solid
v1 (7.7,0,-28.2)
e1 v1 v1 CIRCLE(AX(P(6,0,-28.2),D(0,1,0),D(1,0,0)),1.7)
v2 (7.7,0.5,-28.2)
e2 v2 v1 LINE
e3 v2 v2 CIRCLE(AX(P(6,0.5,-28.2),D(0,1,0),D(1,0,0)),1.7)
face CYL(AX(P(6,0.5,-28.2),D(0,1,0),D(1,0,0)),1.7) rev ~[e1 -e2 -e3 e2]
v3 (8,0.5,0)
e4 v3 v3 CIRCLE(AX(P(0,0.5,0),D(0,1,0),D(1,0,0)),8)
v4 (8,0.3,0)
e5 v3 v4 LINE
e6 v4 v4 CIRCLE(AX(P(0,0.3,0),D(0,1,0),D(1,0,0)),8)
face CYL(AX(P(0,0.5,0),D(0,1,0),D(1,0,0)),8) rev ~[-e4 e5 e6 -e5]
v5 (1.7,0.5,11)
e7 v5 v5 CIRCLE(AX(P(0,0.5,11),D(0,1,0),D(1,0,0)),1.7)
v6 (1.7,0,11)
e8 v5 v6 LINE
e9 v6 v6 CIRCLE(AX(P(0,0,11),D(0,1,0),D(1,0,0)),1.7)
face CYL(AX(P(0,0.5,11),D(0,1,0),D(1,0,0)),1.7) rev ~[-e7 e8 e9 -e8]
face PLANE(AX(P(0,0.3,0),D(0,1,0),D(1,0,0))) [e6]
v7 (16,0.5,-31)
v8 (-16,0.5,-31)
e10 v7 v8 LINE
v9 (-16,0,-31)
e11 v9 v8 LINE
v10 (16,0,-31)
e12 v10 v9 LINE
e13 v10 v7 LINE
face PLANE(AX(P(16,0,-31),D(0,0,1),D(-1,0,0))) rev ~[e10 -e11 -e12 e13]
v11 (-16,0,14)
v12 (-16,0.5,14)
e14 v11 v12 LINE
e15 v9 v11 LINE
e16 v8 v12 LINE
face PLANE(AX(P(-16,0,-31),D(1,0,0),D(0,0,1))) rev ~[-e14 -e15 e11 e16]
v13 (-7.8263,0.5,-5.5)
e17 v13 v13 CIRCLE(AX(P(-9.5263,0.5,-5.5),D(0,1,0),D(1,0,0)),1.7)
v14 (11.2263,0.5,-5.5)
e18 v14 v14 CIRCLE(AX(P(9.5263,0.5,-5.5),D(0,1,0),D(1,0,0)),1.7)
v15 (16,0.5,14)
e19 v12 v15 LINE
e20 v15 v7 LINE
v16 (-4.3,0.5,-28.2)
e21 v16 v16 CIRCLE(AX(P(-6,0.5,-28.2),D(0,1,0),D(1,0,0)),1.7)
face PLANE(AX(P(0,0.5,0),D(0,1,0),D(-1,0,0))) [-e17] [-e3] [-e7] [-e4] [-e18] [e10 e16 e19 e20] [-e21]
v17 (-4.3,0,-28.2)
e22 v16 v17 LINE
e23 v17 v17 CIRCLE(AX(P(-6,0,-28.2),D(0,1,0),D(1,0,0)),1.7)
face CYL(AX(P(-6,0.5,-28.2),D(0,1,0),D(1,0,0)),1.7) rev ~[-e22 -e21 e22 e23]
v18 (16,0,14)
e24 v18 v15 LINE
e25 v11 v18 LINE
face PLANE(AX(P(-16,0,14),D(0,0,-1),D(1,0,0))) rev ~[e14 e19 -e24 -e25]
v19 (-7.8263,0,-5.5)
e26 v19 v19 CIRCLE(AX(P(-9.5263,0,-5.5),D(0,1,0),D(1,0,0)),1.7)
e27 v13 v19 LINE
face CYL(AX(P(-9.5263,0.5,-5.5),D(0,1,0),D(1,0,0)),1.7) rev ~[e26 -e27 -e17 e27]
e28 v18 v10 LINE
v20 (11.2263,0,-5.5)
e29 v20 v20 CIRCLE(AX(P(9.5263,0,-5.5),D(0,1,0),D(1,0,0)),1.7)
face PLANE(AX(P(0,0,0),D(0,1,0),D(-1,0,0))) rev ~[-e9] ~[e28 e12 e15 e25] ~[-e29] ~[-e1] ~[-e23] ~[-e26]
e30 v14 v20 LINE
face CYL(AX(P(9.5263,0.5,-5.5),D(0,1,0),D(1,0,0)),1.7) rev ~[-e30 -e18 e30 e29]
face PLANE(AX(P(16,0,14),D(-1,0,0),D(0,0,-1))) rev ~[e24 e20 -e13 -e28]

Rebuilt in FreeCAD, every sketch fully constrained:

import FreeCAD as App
import Part
import Sketcher
from FreeCAD import Vector


def add_polygon(sketch, points):
    """Adds a closed chain of lines whose ends are joined by coincident constraints."""
    first, n = sketch.GeometryCount, len(points)
    for a, b in zip(points, points[1:] + points[:1]):
        sketch.addGeometry(Part.LineSegment(App.Vector(*a, 0), App.Vector(*b, 0)), False)
    for i in range(n):
        sketch.addConstraint(Sketcher.Constraint("Coincident", first + i, 2, first + (i + 1) % n, 1))

doc = App.newDocument("Part")
body = doc.addObject("PartDesign::Body", "Body")

# Sketch on XZ plane
sketch1 = doc.addObject("Sketcher::SketchObject", "Sketch")
body.addObject(sketch1)
sketch1.AttachmentSupport = (doc.XZ_Plane, [""])
sketch1.MapMode = "FlatFace"
add_polygon(sketch1, [(16, -31), (-16, -31), (-16, 14), (16, 14)])  # lines 0-3
sketch1.addConstraint(Sketcher.Constraint("Horizontal", 0))
sketch1.addConstraint(Sketcher.Constraint("Vertical", 1))
sketch1.addConstraint(Sketcher.Constraint("Horizontal", 2))
sketch1.addConstraint(Sketcher.Constraint("Vertical", 3))
sketch1.addConstraint(Sketcher.Constraint("DistanceX", 0, 2, 0, 1, 32.0))
sketch1.addConstraint(Sketcher.Constraint("DistanceY", 1, 1, 1, 2, 45.0))
sketch1.addConstraint(Sketcher.Constraint("DistanceY", -1, 1, 1, 2, 14.0))
sketch1.addConstraint(Sketcher.Constraint("DistanceX", 0, 2, -1, 1, 16.0))
pad1 = doc.addObject("PartDesign::Pad", "Pad")
body.addObject(pad1)
pad1.Profile = sketch1
pad1.Length = 0.5
pad1.Reversed = True

# Sketch on XZ plane
sketch2 = doc.addObject("Sketcher::SketchObject", "Sketch001")
body.addObject(sketch2)
sketch2.AttachmentSupport = (doc.XZ_Plane, [""])
sketch2.MapMode = "FlatFace"
sketch2.AttachmentOffset = App.Placement(Vector(0, 0, -0.5), App.Rotation())
sketch2.addGeometry(Part.Circle(Vector(0, 11, 0), Vector(0, 0, 1), 1.7), False)
sketch2.addGeometry(Part.Circle(Vector(-6, -28.2, 0), Vector(0, 0, 1), 1.7), False)
sketch2.addGeometry(Part.Circle(Vector(6, -28.2, 0), Vector(0, 0, 1), 1.7), False)
sketch2.addGeometry(Part.Circle(Vector(9.5, -5.5, 0), Vector(0, 0, 1), 1.7), False)
sketch2.addGeometry(Part.Circle(Vector(-9.5, -5.5, 0), Vector(0, 0, 1), 1.7), False)
sketch2.addConstraint(Sketcher.Constraint("Equal", 0, 1))
sketch2.addConstraint(Sketcher.Constraint("Equal", 1, 2))
sketch2.addConstraint(Sketcher.Constraint("Equal", 2, 3))
sketch2.addConstraint(Sketcher.Constraint("Equal", 3, 4))
sketch2.addConstraint(Sketcher.Constraint("Symmetric", 1, 3, 2, 3, -2))
sketch2.addConstraint(Sketcher.Constraint("Symmetric", 3, 3, 4, 3, -2))
sketch2.addConstraint(Sketcher.Constraint("PointOnObject", 0, 3, -2))
sketch2.addConstraint(Sketcher.Constraint("Diameter", 0, 3.4))
sketch2.addConstraint(Sketcher.Constraint("DistanceY", -1, 1, 0, 3, 11.0))
sketch2.addConstraint(Sketcher.Constraint("DistanceX", 1, 3, -1, 1, 6.0))
sketch2.addConstraint(Sketcher.Constraint("DistanceY", 1, 3, -1, 1, 28.2))
sketch2.addConstraint(Sketcher.Constraint("DistanceY", 3, 3, -1, 1, 5.5))
sketch2.addConstraint(Sketcher.Constraint("DistanceX", -1, 1, 3, 3, 9.5263))
pocket1 = doc.addObject("PartDesign::Pocket", "Pocket")
body.addObject(pocket1)
pocket1.Profile = sketch2
pocket1.Type = "ThroughAll"
pocket1.Reversed = True

# Sketch on XZ plane
sketch3 = doc.addObject("Sketcher::SketchObject", "Sketch002")
body.addObject(sketch3)
sketch3.AttachmentSupport = (doc.XZ_Plane, [""])
sketch3.MapMode = "FlatFace"
sketch3.AttachmentOffset = App.Placement(Vector(0, 0, -0.5), App.Rotation())
sketch3.addGeometry(Part.Circle(Vector(0, 0, 0), Vector(0, 0, 1), 8), False)
sketch3.addConstraint(Sketcher.Constraint("Coincident", 0, 3, -1, 1))
sketch3.addConstraint(Sketcher.Constraint("Diameter", 0, 16.0))
pocket2 = doc.addObject("PartDesign::Pocket", "Pocket001")
body.addObject(pocket2)
pocket2.Profile = sketch3
pocket2.Length = 0.2
pocket2.Reversed = True

doc.recompute()
